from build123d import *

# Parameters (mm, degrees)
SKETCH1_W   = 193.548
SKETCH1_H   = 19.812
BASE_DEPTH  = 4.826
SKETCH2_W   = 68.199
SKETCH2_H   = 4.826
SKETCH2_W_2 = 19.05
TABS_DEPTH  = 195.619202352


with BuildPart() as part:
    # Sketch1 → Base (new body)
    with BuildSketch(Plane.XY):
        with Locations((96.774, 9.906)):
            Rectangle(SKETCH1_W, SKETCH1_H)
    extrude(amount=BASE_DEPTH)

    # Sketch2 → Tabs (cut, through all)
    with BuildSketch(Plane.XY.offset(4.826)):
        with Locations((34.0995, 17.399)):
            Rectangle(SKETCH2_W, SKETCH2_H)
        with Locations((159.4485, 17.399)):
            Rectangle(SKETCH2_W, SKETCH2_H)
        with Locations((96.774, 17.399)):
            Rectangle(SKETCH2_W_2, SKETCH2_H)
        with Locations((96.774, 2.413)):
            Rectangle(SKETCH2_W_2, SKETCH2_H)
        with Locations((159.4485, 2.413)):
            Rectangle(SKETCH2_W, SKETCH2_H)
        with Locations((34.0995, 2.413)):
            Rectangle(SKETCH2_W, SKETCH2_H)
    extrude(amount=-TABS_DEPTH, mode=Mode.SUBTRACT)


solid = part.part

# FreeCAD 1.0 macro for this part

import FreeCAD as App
import Part
import Sketcher

V = App.Vector
Q = App.Units.Quantity

doc = App.newDocument("Part")
body = doc.addObject("PartDesign::Body", "Body")

# Sketch on XY plane
sketch1 = body.newObject("Sketcher::SketchObject", "Sketch")
sketch1.AttachmentSupport = (doc.getObject("XY_Plane"), [""])
sketch1.MapMode = "FlatFace"
sketch1.addGeometry(Part.LineSegment(V(0, 20, 0), V(0, 0, 0)), False)
sketch1.addGeometry(Part.LineSegment(V(0, 0, 0), V(194, 0, 0)), False)
sketch1.addGeometry(Part.LineSegment(V(194, 0, 0), V(194, 20, 0)), False)
sketch1.addGeometry(Part.LineSegment(V(194, 20, 0), V(0, 20, 0)), False)
sketch1.addConstraint(Sketcher.Constraint("Coincident", 0, 2, 1, 1))
sketch1.addConstraint(Sketcher.Constraint("Coincident", 1, 2, 2, 1))
sketch1.addConstraint(Sketcher.Constraint("Coincident", 2, 2, 3, 1))
sketch1.addConstraint(Sketcher.Constraint("Coincident", 3, 2, 0, 1))
sketch1.addConstraint(Sketcher.Constraint("Vertical", 0))
sketch1.addConstraint(Sketcher.Constraint("Horizontal", 1))
sketch1.addConstraint(Sketcher.Constraint("Vertical", 2))
sketch1.addConstraint(Sketcher.Constraint("Horizontal", 3))
sketch1.addConstraint(Sketcher.Constraint("Coincident", 0, 2, -1, 1))
sketch1.addConstraint(Sketcher.Constraint("DistanceX", 1, 1, 1, 2, Q("7.62 in")))
sketch1.addConstraint(Sketcher.Constraint("DistanceY", 0, 2, 0, 1, Q("0.78 in")))
pad1 = body.newObject("PartDesign::Pad", "Pad")
pad1.Profile = sketch1
pad1.Length = Q("0.19 in")

# Sketch on XY plane
sketch2 = body.newObject("Sketcher::SketchObject", "Sketch001")
sketch2.AttachmentSupport = (doc.getObject("XY_Plane"), [""])
sketch2.MapMode = "FlatFace"
sketch2.AttachmentOffset = App.Placement(V(0, 0, 0.19 * 25.4), App.Rotation())
sketch2.addGeometry(Part.LineSegment(V(0, 19.8, 0), V(0, 15, 0)), False)
sketch2.addGeometry(Part.LineSegment(V(0, 15, 0), V(68.2, 15, 0)), False)
sketch2.addGeometry(Part.LineSegment(V(68.2, 15, 0), V(68.2, 19.8, 0)), False)
sketch2.addGeometry(Part.LineSegment(V(68.2, 19.8, 0), V(0, 19.8, 0)), False)
sketch2.addGeometry(Part.LineSegment(V(125.3, 19.8, 0), V(125.3, 15, 0)), False)
sketch2.addGeometry(Part.LineSegment(V(125.3, 15, 0), V(193.5, 15, 0)), False)
sketch2.addGeometry(Part.LineSegment(V(193.5, 15, 0), V(193.5, 19.8, 0)), False)
sketch2.addGeometry(Part.LineSegment(V(193.5, 19.8, 0), V(125.3, 19.8, 0)), False)
sketch2.addGeometry(Part.LineSegment(V(87.2, 19.8, 0), V(87.2, 15, 0)), False)
sketch2.addGeometry(Part.LineSegment(V(87.2, 15, 0), V(106.3, 15, 0)), False)
sketch2.addGeometry(Part.LineSegment(V(106.3, 15, 0), V(106.3, 19.8, 0)), False)
sketch2.addGeometry(Part.LineSegment(V(106.3, 19.8, 0), V(87.2, 19.8, 0)), False)
sketch2.addGeometry(Part.LineSegment(V(87.2, 4.8, 0), V(87.2, 0, 0)), False)
sketch2.addGeometry(Part.LineSegment(V(87.2, 0, 0), V(106.3, 0, 0)), False)
sketch2.addGeometry(Part.LineSegment(V(106.3, 0, 0), V(106.3, 4.8, 0)), False)
sketch2.addGeometry(Part.LineSegment(V(106.3, 4.8, 0), V(87.2, 4.8, 0)), False)
sketch2.addGeometry(Part.LineSegment(V(125.3, 4.8, 0), V(125.3, 0, 0)), False)
sketch2.addGeometry(Part.LineSegment(V(125.3, 0, 0), V(193.5, 0, 0)), False)
sketch2.addGeometry(Part.LineSegment(V(193.5, 0, 0), V(193.5, 4.8, 0)), False)
sketch2.addGeometry(Part.LineSegment(V(193.5, 4.8, 0), V(125.3, 4.8, 0)), False)
sketch2.addGeometry(Part.LineSegment(V(0, 4.8, 0), V(0, 0, 0)), False)
sketch2.addGeometry(Part.LineSegment(V(0, 0, 0), V(68.2, 0, 0)), False)
sketch2.addGeometry(Part.LineSegment(V(68.2, 0, 0), V(68.2, 4.8, 0)), False)
sketch2.addGeometry(Part.LineSegment(V(68.2, 4.8, 0), V(0, 4.8, 0)), False)
sketch2.addConstraint(Sketcher.Constraint("Coincident", 0, 2, 1, 1))
sketch2.addConstraint(Sketcher.Constraint("Coincident", 1, 2, 2, 1))
sketch2.addConstraint(Sketcher.Constraint("Coincident", 2, 2, 3, 1))
sketch2.addConstraint(Sketcher.Constraint("Coincident", 3, 2, 0, 1))
sketch2.addConstraint(Sketcher.Constraint("Coincident", 4, 2, 5, 1))
sketch2.addConstraint(Sketcher.Constraint("Coincident", 5, 2, 6, 1))
sketch2.addConstraint(Sketcher.Constraint("Coincident", 6, 2, 7, 1))
sketch2.addConstraint(Sketcher.Constraint("Coincident", 7, 2, 4, 1))
sketch2.addConstraint(Sketcher.Constraint("Coincident", 8, 2, 9, 1))
sketch2.addConstraint(Sketcher.Constraint("Coincident", 9, 2, 10, 1))
sketch2.addConstraint(Sketcher.Constraint("Coincident", 10, 2, 11, 1))
sketch2.addConstraint(Sketcher.Constraint("Coincident", 11, 2, 8, 1))
sketch2.addConstraint(Sketcher.Constraint("Coincident", 12, 2, 13, 1))
sketch2.addConstraint(Sketcher.Constraint("Coincident", 13, 2, 14, 1))
sketch2.addConstraint(Sketcher.Constraint("Coincident", 14, 2, 15, 1))
sketch2.addConstraint(Sketcher.Constraint("Coincident", 15, 2, 12, 1))
sketch2.addConstraint(Sketcher.Constraint("Coincident", 16, 2, 17, 1))
sketch2.addConstraint(Sketcher.Constraint("Coincident", 17, 2, 18, 1))
sketch2.addConstraint(Sketcher.Constraint("Coincident", 18, 2, 19, 1))
sketch2.addConstraint(Sketcher.Constraint("Coincident", 19, 2, 16, 1))
sketch2.addConstraint(Sketcher.Constraint("Coincident", 20, 2, 21, 1))
sketch2.addConstraint(Sketcher.Constraint("Coincident", 21, 2, 22, 1))
sketch2.addConstraint(Sketcher.Constraint("Coincident", 22, 2, 23, 1))
sketch2.addConstraint(Sketcher.Constraint("Coincident", 23, 2, 20, 1))
sketch2.addConstraint(Sketcher.Constraint("Vertical", 0))
sketch2.addConstraint(Sketcher.Constraint("Horizontal", 1))
sketch2.addConstraint(Sketcher.Constraint("Vertical", 2))
sketch2.addConstraint(Sketcher.Constraint("Horizontal", 3))
sketch2.addConstraint(Sketcher.Constraint("Vertical", 4))
sketch2.addConstraint(Sketcher.Constraint("Horizontal", 5))
sketch2.addConstraint(Sketcher.Constraint("Vertical", 6))
sketch2.addConstraint(Sketcher.Constraint("Horizontal", 7))
sketch2.addConstraint(Sketcher.Constraint("Vertical", 8))
sketch2.addConstraint(Sketcher.Constraint("Horizontal", 9))
sketch2.addConstraint(Sketcher.Constraint("Vertical", 10))
sketch2.addConstraint(Sketcher.Constraint("Horizontal", 11))
sketch2.addConstraint(Sketcher.Constraint("Vertical", 12))
sketch2.addConstraint(Sketcher.Constraint("Horizontal", 13))
sketch2.addConstraint(Sketcher.Constraint("Vertical", 14))
sketch2.addConstraint(Sketcher.Constraint("Horizontal", 15))
sketch2.addConstraint(Sketcher.Constraint("Vertical", 16))
sketch2.addConstraint(Sketcher.Constraint("Horizontal", 17))
sketch2.addConstraint(Sketcher.Constraint("Vertical", 18))
sketch2.addConstraint(Sketcher.Constraint("Horizontal", 19))
sketch2.addConstraint(Sketcher.Constraint("Vertical", 20))
sketch2.addConstraint(Sketcher.Constraint("Horizontal", 21))
sketch2.addConstraint(Sketcher.Constraint("Vertical", 22))
sketch2.addConstraint(Sketcher.Constraint("Horizontal", 23))
sketch2.addConstraint(Sketcher.Constraint("Coincident", 20, 2, -1, 1))
sketch2.addConstraint(Sketcher.Constraint("PointOnObject", 0, 2, -2))
sketch2.addConstraint(Sketcher.Constraint("PointOnObject", 12, 2, -1))
sketch2.addConstraint(Sketcher.Constraint("PointOnObject", 16, 2, -1))
sketch2.addConstraint(Sketcher.Constraint("Horizontal", 1, 2, 4, 2))
sketch2.addConstraint(Sketcher.Constraint("Horizontal", 3, 2, 6, 2))
sketch2.addConstraint(Sketcher.Constraint("Horizontal", 5, 2, 8, 2))
sketch2.addConstraint(Sketcher.Constraint("Horizontal", 7, 2, 10, 2))
sketch2.addConstraint(Sketcher.Constraint("Horizontal", 15, 2, 18, 2))
sketch2.addConstraint(Sketcher.Constraint("Horizontal", 19, 2, 22, 2))
sketch2.addConstraint(Sketcher.Constraint("Vertical", 11, 2, 12, 2))
sketch2.addConstraint(Sketcher.Constraint("Vertical", 10, 2, 13, 2))
sketch2.addConstraint(Sketcher.Constraint("Vertical", 7, 2, 16, 2))
sketch2.addConstraint(Sketcher.Constraint("Vertical", 6, 2, 17, 2))
sketch2.addConstraint(Sketcher.Constraint("Vertical", 2, 2, 21, 2))
sketch2.addConstraint(Sketcher.Constraint("Equal", 3, 5))
sketch2.addConstraint(Sketcher.Constraint("Equal", 10, 12))
sketch2.addConstraint(Sketcher.Constraint("DistanceX", 9, 1, 9, 2, Q("0.75 in")))
sketch2.addConstraint(Sketcher.Constraint("DistanceY", 0, 2, 0, 1, Q("0.19 in")))
sketch2.addConstraint(Sketcher.Constraint("DistanceX", 8, 2, 4, 2, Q("1.5 in")))
sketch2.addConstraint(Sketcher.Constraint("DistanceX", 1, 2, 9, 2, Q("1.5 in")))
sketch2.addConstraint(Sketcher.Constraint("DistanceY", 14, 2, 9, 2, Q("0.4 in")))
sketch2.addConstraint(Sketcher.Constraint("DistanceX", 1, 1, 1, 2, Q("2.685 in")))
pocket1 = body.newObject("PartDesign::Pocket", "Pocket")
pocket1.Profile = sketch2
pocket1.Type = "ThroughAll"

doc.recompute()
